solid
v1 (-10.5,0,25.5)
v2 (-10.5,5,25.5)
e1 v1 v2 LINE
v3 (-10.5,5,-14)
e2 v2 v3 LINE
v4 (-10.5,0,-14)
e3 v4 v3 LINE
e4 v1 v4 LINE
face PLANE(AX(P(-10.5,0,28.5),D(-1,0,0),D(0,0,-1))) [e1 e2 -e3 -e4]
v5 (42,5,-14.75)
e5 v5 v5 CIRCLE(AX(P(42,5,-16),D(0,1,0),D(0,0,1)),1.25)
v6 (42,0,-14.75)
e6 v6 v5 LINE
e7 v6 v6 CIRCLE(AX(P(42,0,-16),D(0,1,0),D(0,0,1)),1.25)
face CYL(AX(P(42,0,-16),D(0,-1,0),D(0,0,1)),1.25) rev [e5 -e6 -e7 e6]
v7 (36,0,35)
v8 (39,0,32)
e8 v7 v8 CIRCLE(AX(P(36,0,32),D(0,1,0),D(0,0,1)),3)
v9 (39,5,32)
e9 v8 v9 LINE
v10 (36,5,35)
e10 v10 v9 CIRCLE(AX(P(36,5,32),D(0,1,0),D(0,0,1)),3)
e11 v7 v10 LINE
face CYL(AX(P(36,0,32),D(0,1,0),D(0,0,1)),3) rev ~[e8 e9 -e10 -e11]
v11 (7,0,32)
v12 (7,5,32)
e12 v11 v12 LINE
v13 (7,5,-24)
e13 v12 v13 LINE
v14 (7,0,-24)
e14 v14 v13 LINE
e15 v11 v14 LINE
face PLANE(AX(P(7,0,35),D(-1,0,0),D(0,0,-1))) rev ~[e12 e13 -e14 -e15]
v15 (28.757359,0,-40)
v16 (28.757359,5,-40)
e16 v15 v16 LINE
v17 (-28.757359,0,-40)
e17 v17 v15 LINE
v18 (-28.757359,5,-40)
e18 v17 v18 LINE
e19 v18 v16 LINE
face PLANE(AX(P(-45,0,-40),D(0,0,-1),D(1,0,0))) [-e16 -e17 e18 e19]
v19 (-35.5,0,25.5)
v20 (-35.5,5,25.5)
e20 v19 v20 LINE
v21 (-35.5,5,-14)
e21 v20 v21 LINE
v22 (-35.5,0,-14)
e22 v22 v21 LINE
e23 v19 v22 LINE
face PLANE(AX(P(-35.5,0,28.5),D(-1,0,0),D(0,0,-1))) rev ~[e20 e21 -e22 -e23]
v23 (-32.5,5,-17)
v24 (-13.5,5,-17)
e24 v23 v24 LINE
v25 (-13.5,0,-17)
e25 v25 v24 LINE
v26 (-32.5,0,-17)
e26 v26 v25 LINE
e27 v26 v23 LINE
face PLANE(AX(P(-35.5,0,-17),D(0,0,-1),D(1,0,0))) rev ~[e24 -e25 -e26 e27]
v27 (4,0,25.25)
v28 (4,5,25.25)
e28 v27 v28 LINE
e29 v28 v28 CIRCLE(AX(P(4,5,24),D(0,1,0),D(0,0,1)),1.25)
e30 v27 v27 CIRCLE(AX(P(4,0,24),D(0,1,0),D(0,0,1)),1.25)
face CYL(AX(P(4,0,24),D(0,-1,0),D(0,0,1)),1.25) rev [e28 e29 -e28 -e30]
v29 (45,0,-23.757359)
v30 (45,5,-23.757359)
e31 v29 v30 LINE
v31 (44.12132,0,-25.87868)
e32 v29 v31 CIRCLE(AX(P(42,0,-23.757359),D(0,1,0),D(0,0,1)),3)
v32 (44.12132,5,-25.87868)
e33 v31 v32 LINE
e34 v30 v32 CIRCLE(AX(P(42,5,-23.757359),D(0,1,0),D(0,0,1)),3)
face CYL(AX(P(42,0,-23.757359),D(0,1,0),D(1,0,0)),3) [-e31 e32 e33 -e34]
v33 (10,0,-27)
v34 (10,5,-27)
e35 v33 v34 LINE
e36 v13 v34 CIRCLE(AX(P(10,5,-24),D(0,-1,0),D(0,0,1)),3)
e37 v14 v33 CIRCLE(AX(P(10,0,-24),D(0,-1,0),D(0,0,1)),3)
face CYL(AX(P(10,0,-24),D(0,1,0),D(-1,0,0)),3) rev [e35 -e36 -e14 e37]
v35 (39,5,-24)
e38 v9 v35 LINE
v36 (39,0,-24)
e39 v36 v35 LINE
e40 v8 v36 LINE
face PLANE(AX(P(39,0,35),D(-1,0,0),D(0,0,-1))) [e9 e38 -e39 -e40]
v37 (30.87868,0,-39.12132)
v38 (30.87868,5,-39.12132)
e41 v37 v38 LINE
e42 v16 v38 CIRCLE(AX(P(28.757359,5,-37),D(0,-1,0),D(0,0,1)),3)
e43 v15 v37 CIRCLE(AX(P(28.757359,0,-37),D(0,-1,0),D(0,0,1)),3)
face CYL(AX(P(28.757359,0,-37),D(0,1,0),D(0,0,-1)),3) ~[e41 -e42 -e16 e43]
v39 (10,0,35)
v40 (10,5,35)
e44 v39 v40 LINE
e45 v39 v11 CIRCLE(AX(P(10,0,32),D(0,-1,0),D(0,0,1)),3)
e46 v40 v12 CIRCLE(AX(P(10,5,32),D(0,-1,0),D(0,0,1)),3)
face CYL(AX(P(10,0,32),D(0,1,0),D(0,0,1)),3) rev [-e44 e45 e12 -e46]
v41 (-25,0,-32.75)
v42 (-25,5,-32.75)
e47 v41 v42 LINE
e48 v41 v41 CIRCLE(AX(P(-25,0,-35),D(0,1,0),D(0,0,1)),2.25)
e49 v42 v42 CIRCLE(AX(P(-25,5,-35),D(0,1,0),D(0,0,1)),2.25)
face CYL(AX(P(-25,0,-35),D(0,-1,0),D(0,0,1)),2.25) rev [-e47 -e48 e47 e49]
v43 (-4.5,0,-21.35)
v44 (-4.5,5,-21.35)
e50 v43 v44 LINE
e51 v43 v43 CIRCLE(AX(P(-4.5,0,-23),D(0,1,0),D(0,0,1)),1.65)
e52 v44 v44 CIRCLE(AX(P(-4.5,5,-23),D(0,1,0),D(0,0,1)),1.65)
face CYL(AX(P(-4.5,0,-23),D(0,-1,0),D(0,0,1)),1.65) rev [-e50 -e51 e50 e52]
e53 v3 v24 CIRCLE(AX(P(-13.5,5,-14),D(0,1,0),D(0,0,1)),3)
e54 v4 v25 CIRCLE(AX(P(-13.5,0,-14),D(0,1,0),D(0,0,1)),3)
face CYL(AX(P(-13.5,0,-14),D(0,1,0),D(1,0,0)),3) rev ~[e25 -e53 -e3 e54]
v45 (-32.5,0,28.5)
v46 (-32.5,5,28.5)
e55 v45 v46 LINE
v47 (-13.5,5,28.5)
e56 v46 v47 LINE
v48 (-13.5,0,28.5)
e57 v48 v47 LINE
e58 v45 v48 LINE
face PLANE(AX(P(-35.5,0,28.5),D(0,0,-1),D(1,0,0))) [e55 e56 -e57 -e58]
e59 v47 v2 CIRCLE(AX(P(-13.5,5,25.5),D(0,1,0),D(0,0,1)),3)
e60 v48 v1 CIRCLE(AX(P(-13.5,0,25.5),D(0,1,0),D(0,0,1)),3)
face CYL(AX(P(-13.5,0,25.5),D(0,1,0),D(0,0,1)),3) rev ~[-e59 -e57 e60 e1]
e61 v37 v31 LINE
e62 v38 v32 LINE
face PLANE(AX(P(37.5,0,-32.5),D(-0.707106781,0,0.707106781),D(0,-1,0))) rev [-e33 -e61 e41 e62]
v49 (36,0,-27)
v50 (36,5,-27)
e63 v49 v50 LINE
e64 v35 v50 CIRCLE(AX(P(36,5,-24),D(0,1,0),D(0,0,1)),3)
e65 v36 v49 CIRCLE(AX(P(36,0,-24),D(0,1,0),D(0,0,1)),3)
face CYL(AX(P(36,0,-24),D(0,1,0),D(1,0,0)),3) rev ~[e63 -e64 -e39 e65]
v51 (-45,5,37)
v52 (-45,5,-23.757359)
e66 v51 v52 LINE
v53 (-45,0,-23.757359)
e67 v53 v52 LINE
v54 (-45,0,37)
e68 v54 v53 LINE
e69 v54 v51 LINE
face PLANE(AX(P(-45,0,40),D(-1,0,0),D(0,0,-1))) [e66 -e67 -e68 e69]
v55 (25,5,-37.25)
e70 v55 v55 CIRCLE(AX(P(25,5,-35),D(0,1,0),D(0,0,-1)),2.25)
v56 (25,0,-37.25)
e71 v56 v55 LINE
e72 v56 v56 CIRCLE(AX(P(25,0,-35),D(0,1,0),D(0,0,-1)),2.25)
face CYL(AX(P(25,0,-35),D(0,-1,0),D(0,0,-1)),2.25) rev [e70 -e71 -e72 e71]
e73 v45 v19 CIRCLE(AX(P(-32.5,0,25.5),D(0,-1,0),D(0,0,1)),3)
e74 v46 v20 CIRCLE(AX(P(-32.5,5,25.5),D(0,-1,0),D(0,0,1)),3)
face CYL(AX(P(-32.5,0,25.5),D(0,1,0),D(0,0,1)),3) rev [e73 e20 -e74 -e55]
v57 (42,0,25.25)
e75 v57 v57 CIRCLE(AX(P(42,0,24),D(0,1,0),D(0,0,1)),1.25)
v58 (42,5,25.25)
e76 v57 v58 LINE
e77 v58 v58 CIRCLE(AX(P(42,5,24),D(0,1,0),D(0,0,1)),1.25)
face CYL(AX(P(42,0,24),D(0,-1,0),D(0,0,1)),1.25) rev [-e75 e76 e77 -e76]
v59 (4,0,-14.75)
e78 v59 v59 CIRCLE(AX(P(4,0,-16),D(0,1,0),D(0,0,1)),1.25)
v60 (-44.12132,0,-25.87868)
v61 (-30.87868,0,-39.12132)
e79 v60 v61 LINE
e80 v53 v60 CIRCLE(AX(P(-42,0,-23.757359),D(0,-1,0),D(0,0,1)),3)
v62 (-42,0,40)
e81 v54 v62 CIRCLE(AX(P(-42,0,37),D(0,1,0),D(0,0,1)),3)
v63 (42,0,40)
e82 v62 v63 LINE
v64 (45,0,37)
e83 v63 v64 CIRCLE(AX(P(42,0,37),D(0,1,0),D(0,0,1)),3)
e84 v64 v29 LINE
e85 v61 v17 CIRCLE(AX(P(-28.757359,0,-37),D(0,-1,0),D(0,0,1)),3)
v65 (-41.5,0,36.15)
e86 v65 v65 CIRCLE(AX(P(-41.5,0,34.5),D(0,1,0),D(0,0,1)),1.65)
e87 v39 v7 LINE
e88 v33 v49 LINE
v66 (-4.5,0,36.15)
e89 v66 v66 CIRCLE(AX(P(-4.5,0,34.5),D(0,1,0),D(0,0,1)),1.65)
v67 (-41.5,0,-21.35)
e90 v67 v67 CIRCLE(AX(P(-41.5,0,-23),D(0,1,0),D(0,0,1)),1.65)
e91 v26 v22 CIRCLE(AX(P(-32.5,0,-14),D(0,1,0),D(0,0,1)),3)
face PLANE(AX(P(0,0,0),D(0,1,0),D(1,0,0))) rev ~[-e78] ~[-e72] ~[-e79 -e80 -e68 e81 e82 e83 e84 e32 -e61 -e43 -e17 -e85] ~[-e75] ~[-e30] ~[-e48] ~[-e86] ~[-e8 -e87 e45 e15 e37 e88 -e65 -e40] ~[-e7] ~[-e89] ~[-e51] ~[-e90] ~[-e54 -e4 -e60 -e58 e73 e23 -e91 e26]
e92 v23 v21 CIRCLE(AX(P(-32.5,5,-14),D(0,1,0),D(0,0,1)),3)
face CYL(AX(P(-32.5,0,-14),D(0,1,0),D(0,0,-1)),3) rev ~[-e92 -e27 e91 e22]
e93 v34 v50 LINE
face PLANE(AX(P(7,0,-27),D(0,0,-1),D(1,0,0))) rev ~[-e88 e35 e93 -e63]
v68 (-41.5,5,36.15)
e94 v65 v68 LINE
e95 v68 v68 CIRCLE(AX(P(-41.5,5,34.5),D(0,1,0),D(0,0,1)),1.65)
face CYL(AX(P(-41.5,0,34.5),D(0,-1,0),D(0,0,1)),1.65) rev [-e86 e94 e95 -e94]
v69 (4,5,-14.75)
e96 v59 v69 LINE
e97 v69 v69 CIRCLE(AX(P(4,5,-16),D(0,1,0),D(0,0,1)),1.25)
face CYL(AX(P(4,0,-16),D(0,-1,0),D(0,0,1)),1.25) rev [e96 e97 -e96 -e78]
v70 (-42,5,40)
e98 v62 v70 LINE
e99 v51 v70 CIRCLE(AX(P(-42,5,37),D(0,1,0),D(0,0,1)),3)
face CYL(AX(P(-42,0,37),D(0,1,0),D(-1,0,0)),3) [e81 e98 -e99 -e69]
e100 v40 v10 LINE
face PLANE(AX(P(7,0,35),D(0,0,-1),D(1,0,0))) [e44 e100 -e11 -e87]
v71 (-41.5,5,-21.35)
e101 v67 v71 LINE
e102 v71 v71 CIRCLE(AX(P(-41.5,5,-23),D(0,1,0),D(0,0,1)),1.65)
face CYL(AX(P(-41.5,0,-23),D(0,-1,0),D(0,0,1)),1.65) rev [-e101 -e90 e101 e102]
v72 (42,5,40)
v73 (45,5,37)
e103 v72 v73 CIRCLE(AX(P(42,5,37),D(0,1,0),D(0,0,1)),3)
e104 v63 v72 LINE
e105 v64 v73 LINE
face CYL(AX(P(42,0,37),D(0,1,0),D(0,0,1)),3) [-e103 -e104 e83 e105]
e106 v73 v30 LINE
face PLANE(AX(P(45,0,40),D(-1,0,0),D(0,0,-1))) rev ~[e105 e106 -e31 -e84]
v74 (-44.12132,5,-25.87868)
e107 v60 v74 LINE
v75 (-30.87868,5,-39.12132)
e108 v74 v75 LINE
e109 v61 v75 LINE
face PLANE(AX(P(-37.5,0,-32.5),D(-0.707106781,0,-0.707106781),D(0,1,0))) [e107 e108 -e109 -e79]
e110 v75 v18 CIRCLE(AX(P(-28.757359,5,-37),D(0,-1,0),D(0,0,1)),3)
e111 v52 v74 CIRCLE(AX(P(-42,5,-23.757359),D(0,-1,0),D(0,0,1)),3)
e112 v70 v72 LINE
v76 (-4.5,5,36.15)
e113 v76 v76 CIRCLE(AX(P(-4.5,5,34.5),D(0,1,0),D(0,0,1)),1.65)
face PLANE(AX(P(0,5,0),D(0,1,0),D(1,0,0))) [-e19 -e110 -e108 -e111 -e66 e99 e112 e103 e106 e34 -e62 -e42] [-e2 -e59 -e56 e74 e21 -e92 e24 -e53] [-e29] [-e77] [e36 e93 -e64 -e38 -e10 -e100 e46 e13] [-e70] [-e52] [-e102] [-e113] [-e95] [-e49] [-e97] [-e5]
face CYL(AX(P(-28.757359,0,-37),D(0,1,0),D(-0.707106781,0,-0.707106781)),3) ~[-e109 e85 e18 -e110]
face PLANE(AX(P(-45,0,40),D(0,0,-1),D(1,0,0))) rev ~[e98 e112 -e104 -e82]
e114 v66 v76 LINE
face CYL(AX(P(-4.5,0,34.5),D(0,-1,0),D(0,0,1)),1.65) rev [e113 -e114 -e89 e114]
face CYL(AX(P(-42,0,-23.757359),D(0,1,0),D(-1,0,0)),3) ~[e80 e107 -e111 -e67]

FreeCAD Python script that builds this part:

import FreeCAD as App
import Part
import Sketcher
from FreeCAD import Vector
Q = App.Units.Quantity


def edges_at(feature, points):
    """Names of the edges that pass closest to the given points."""
    edges = feature.Shape.Edges
    near = lambda p: min(range(len(edges)), key=lambda i: edges[i].distToShape(Part.Vertex(*p))[0])
    return sorted({f"Edge{near(p) + 1}" for p in points})


def add_polygon(sketch, points):
    """Adds a closed chain of lines whose ends are joined by coincident constraints."""
    first, n = sketch.GeometryCount, len(points)
    for a, b in zip(points, points[1:] + points[:1]):
        sketch.addGeometry(Part.LineSegment(App.Vector(*a, 0), App.Vector(*b, 0)), False)
    for i in range(n):
        sketch.addConstraint(Sketcher.Constraint("Coincident", first + i, 2, first + (i + 1) % n, 1))

doc = App.newDocument("Part")
params = doc.addObject("Spreadsheet::Sheet", "Params")
for row, (alias, value) in enumerate([
    ("sketch1_diameter", "3.3 mm"),
    ("sketch1_diameter2", "2.5 mm"),
    ("sketch1_diameter3", "4.5 mm"),
    ("sketch1_width", "90 mm"),
    ("sketch1_width2", "25 mm"),
    ("pad1_length", "5 mm"),
    ("chamfer_size", "15 mm"),
    ("fillet_radius", "3 mm"),
], start=1):
    params.set(f"A{row}", alias)
    params.set(f"B{row}", "=" + value)
    params.setAlias(f"B{row}", alias)

body = doc.addObject("PartDesign::Body", "Body")

sketch1 = doc.addObject("Sketcher::SketchObject", "Sketch")
body.addObject(sketch1)
sketch1.AttachmentSupport = (doc.XZ_Plane, [""])
sketch1.MapMode = "FlatFace"
add_polygon(sketch1, [(-45, -40), (-45, 40), (45, 40), (45, -40)])
sketch1.addGeometry(Part.Circle(Vector(-41.5, 34.5, 0), Vector(0, 0, 1), 1.6), False)
sketch1.addGeometry(Part.Circle(Vector(-4.5, 34.5, 0), Vector(0, 0, 1), 1.6), False)
add_polygon(sketch1, [(-10.5, 28.5), (-35.5, 28.5), (-35.5, -17), (-10.5, -17)])
sketch1.addGeometry(Part.Circle(Vector(4, 24, 0), Vector(0, 0, 1), 1.2), False)
sketch1.addGeometry(Part.Circle(Vector(42, 24, 0), Vector(0, 0, 1), 1.2), False)
add_polygon(sketch1, [(39, 35), (7, 35), (7, -27), (39, -27)])
sketch1.addGeometry(Part.Circle(Vector(-41.5, -23, 0), Vector(0, 0, 1), 1.6), False)
sketch1.addGeometry(Part.Circle(Vector(-25, -35, 0), Vector(0, 0, 1), 2.2), False)
sketch1.addGeometry(Part.Circle(Vector(-4.5, -23, 0), Vector(0, 0, 1), 1.6), False)
sketch1.addGeometry(Part.Circle(Vector(4, -16, 0), Vector(0, 0, 1), 1.2), False)
sketch1.addGeometry(Part.Circle(Vector(42, -16, 0), Vector(0, 0, 1), 1.2), False)
sketch1.addGeometry(Part.Circle(Vector(25, -35, 0), Vector(0, 0, 1), 2.2), False)
sketch1.addConstraint([
    Sketcher.Constraint("Vertical", 0),
    Sketcher.Constraint("Horizontal", 1),
    Sketcher.Constraint("Vertical", 2),
    Sketcher.Constraint("Horizontal", 3),
    Sketcher.Constraint("Horizontal", 6),
    Sketcher.Constraint("Vertical", 7),
    Sketcher.Constraint("Horizontal", 8),
    Sketcher.Constraint("Vertical", 9),
    Sketcher.Constraint("Horizontal", 12),
    Sketcher.Constraint("Vertical", 13),
    Sketcher.Constraint("Horizontal", 14),
    Sketcher.Constraint("Vertical", 15),
    Sketcher.Constraint("Equal", 4, 5),
    Sketcher.Constraint("Equal", 10, 11),
    Sketcher.Constraint("Equal", 5, 16),
    Sketcher.Constraint("Equal", 16, 18),
    Sketcher.Constraint("Equal", 11, 19),
    Sketcher.Constraint("Equal", 19, 20),
    Sketcher.Constraint("Equal", 17, 21),
    Sketcher.Constraint("Symmetric", 0, 2, 2, 2, -1, 1),
    Sketcher.Constraint("Symmetric", 17, 3, 21, 3, -2),
    Sketcher.Constraint("Horizontal", 4, 3, 5, 3),
    Sketcher.Constraint("Horizontal", 10, 3, 11, 3),
    Sketcher.Constraint("Horizontal", 16, 3, 18, 3),
    Sketcher.Constraint("Horizontal", 19, 3, 20, 3),
    Sketcher.Constraint("Vertical", 4, 3, 16, 3),
    Sketcher.Constraint("Vertical", 5, 3, 18, 3),
    Sketcher.Constraint("Vertical", 10, 3, 19, 3),
    Sketcher.Constraint("Vertical", 11, 3, 20, 3),
    Sketcher.Constraint("Diameter", 4, Q("3.3 mm")),
    Sketcher.Constraint("Diameter", 10, Q("2.5 mm")),
    Sketcher.Constraint("Diameter", 17, Q("4.5 mm")),
    Sketcher.Constraint("DistanceX", 1, 1, 1, 2, Q("90 mm")),
    Sketcher.Constraint("DistanceX", 6, 2, 6, 1, Q("25 mm")),
    Sketcher.Constraint("DistanceX", 12, 2, 12, 1, Q("32 mm")),
    Sketcher.Constraint("DistanceY", 0, 1, 0, 2, Q("80 mm")),
    Sketcher.Constraint("DistanceY", 13, 2, 13, 1, Q("62 mm")),
    Sketcher.Constraint("DistanceY", 7, 2, 7, 1, Q("45.5 mm")),
    Sketcher.Constraint("DistanceX", -1, 1, 10, 3, Q("4 mm")),
    Sketcher.Constraint("DistanceY", -1, 1, 10, 3, Q("24 mm")),
    Sketcher.Constraint("DistanceX", -1, 1, 11, 3, Q("42 mm")),
    Sketcher.Constraint("DistanceY", 16, 3, -1, 1, Q("23 mm")),
    Sketcher.Constraint("DistanceX", 17, 3, -1, 1, Q("25 mm")),
    Sketcher.Constraint("DistanceY", 17, 3, -1, 1, Q("35 mm")),
    Sketcher.Constraint("DistanceY", 19, 3, -1, 1, Q("16 mm")),
    Sketcher.Constraint("DistanceY", 7, 2, -1, 1, Q("17 mm")),
    Sketcher.Constraint("DistanceX", -1, 1, 12, 2, Q("7 mm")),
    Sketcher.Constraint("DistanceY", -1, 1, 12, 2, Q("35 mm")),
    Sketcher.Constraint("DistanceX", 4, 3, 5, 3, Q("37 mm")),
    Sketcher.Constraint("DistanceX", 4, 3, 6, 2, Q("6 mm")),
    Sketcher.Constraint("DistanceY", 6, 2, 4, 3, Q("6 mm")),
    Sketcher.Constraint("DistanceX", 4, 3, -1, 1, Q("41.5 mm")),
])
sketch1.setExpression("Constraints[41]", "Params.sketch1_diameter")
sketch1.setExpression("Constraints[42]", "Params.sketch1_diameter2")
sketch1.setExpression("Constraints[43]", "Params.sketch1_diameter3")
sketch1.setExpression("Constraints[44]", "Params.sketch1_width")
sketch1.setExpression("Constraints[45]", "Params.sketch1_width2")
pad1 = doc.addObject("PartDesign::Pad", "Pad")
body.addObject(pad1)
pad1.Profile = sketch1
pad1.setExpression("Length", "Params.pad1_length")
pad1.Reversed = True
doc.recompute()

chamfer = doc.addObject("PartDesign::Chamfer", "Chamfer")
body.addObject(chamfer)
chamfer.Base = (pad1, edges_at(pad1, [(-45, 2.5, -40), (45, 2.5, -40)]))
chamfer.setExpression("Size", "Params.chamfer_size")
doc.recompute()

fillet = doc.addObject("PartDesign::Fillet", "Fillet")
body.addObject(fillet)
fillet.Base = (chamfer, edges_at(chamfer, [
    (7, 2.5, -27),
    (7, 2.5, 35),
    (39, 2.5, 35),
    (39, 2.5, -27),
    (-35.5, 2.5, -17),
    (-35.5, 2.5, 28.5),
    (-10.5, 2.5, 28.5),
    (-10.5, 2.5, -17),
    (45, 2.5, 40),
    (-45, 2.5, 40),
    (-30, 2.5, -40),
    (30, 2.5, -40),
    (45, 2.5, -25),
    (-45, 2.5, -25),
]))
fillet.setExpression("Radius", "Params.fillet_radius")

doc.recompute()
